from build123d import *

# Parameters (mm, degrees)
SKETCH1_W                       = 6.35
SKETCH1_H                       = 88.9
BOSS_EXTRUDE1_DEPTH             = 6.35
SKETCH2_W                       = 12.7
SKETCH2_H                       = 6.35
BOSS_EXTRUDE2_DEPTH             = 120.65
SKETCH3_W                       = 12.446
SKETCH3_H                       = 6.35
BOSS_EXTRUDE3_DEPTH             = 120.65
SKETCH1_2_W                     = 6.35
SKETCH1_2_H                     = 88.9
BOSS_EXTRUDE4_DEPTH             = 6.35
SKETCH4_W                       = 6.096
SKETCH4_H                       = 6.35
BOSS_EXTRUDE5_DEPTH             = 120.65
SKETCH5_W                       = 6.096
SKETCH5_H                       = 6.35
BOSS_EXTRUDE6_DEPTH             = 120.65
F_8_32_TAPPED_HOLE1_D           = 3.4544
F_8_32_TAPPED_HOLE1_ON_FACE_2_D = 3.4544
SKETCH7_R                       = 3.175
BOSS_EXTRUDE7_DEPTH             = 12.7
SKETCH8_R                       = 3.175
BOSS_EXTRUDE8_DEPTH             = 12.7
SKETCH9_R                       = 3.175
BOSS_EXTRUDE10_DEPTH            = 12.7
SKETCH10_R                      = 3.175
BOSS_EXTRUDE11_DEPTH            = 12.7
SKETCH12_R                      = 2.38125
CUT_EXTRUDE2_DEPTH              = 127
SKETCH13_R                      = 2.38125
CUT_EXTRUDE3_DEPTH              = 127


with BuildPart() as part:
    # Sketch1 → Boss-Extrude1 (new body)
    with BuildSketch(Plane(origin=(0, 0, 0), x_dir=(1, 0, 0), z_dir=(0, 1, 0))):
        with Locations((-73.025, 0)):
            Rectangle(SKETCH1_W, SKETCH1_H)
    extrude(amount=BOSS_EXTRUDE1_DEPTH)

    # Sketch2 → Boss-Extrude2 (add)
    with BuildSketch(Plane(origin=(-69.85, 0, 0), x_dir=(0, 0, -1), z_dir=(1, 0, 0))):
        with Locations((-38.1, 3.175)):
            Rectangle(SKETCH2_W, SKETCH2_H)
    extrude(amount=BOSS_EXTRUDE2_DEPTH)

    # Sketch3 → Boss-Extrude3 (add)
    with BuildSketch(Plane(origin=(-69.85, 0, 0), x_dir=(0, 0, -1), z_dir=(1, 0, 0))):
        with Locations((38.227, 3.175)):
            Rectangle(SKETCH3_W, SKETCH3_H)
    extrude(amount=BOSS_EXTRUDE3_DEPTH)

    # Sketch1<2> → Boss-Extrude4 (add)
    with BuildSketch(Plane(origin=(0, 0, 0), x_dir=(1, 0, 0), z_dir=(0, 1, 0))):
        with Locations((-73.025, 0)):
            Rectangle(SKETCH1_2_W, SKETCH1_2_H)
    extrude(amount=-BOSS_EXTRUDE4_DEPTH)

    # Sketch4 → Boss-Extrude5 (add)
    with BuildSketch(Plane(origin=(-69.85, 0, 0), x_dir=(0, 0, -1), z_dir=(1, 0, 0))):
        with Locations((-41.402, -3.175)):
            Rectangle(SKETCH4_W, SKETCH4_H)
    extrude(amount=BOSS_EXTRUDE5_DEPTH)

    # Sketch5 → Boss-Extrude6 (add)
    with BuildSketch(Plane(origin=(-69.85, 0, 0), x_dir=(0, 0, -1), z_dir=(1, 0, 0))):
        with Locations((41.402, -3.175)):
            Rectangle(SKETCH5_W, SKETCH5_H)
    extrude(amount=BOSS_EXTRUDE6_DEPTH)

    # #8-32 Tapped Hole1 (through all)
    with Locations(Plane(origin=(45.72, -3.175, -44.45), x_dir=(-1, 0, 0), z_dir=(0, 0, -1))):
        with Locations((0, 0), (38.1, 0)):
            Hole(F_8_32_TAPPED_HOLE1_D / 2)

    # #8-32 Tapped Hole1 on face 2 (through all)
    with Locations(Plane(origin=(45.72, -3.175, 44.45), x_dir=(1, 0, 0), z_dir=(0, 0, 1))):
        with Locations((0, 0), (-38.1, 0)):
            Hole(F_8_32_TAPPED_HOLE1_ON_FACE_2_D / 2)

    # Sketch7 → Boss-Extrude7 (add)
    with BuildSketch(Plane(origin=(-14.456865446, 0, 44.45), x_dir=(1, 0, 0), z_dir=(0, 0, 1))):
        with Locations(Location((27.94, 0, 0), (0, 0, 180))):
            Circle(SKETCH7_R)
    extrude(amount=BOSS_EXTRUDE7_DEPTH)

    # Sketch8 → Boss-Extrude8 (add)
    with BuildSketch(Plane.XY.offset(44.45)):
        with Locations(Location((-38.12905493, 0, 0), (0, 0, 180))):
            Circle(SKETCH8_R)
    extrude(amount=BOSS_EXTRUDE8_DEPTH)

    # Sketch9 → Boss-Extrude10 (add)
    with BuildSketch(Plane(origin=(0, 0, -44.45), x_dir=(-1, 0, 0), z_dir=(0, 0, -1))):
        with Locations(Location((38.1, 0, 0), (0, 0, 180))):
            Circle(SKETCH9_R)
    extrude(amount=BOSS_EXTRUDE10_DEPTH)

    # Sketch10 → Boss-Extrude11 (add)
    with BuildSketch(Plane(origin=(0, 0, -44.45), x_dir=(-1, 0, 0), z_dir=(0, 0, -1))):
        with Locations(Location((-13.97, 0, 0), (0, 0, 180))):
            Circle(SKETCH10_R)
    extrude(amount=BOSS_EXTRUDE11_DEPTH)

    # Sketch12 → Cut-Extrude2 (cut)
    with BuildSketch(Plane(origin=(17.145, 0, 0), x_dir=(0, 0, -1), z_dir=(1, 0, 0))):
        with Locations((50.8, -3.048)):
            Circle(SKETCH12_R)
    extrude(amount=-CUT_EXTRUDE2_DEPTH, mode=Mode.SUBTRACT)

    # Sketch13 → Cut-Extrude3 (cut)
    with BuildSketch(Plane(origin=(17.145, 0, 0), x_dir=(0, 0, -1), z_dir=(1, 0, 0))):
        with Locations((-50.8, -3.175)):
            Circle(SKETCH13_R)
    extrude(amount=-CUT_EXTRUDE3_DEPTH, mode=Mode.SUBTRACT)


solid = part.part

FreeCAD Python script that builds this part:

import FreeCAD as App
import Part
import Sketcher
Q = App.Units.Quantity

doc = App.newDocument("Part")
body = doc.addObject("PartDesign::Body", "Body")

# Sketch on XZ plane
sketch1 = body.newObject("Sketcher::SketchObject", "Sketch")
sketch1.AttachmentSupport = (doc.getObject("XZ_Plane"), [""])
sketch1.MapMode = "FlatFace"
sketch1.addGeometry([
    Part.LineSegment(App.Vector(-76, -44, 0), App.Vector(-76, 44, 0)),
    Part.LineSegment(App.Vector(-76, 44, 0), App.Vector(-70, 44, 0)),
    Part.LineSegment(App.Vector(-70, 44, 0), App.Vector(-70, -44, 0)),
    Part.LineSegment(App.Vector(-70, -44, 0), App.Vector(-76, -44, 0)),
], False)
sketch1.addConstraint([
    Sketcher.Constraint("Coincident", 0, 2, 1, 1),
    Sketcher.Constraint("Coincident", 1, 2, 2, 1),
    Sketcher.Constraint("Coincident", 2, 2, 3, 1),
    Sketcher.Constraint("Coincident", 3, 2, 0, 1),
    Sketcher.Constraint("Vertical", 0),
    Sketcher.Constraint("Horizontal", 1),
    Sketcher.Constraint("Vertical", 2),
    Sketcher.Constraint("Horizontal", 3),
    Sketcher.Constraint("DistanceY", 0, 1, 0, 2, Q("3.5 in")),
    Sketcher.Constraint("DistanceX", 0, 2, -1, 1, Q("3 in")),
    Sketcher.Constraint("DistanceX", 1, 1, 1, 2, Q("0.25 in")),
    Sketcher.Constraint("DistanceY", -1, 1, 0, 2, Q("1.75 in")),
])
pad1 = body.newObject("PartDesign::Pad", "Pad")
pad1.Profile = sketch1
pad1.Length = Q("0.25 in")
pad1.Reversed = True

# Sketch on YZ plane
sketch2 = body.newObject("Sketcher::SketchObject", "Sketch001")
sketch2.AttachmentSupport = (doc.getObject("YZ_Plane"), [""])
sketch2.MapMode = "FlatFace"
sketch2.AttachmentOffset = App.Placement(App.Vector(0, 0, -2.75 * 25.4), App.Rotation())
sketch2.addGeometry([
    Part.LineSegment(App.Vector(6, 44, 0), App.Vector(0, 44, 0)),
    Part.LineSegment(App.Vector(0, 44, 0), App.Vector(0, 32, 0)),
    Part.LineSegment(App.Vector(0, 32, 0), App.Vector(6, 32, 0)),
    Part.LineSegment(App.Vector(6, 32, 0), App.Vector(6, 44, 0)),
], False)
sketch2.addConstraint([
    Sketcher.Constraint("Coincident", 0, 2, 1, 1),
    Sketcher.Constraint("Coincident", 1, 2, 2, 1),
    Sketcher.Constraint("Coincident", 2, 2, 3, 1),
    Sketcher.Constraint("Coincident", 3, 2, 0, 1),
    Sketcher.Constraint("Horizontal", 0),
    Sketcher.Constraint("Vertical", 1),
    Sketcher.Constraint("Horizontal", 2),
    Sketcher.Constraint("Vertical", 3),
    Sketcher.Constraint("PointOnObject", 0, 2, -2),
    Sketcher.Constraint("DistanceY", 1, 2, 1, 1, Q("0.5 in")),
    Sketcher.Constraint("DistanceX", 0, 2, 0, 1, Q("0.25 in")),
    Sketcher.Constraint("DistanceY", -1, 1, 0, 2, Q("1.75 in")),
])
pad2 = body.newObject("PartDesign::Pad", "Pad001")
pad2.Profile = sketch2
pad2.Length = Q("4.75 in")

# Sketch on YZ plane
sketch3 = body.newObject("Sketcher::SketchObject", "Sketch002")
sketch3.AttachmentSupport = (doc.getObject("YZ_Plane"), [""])
sketch3.MapMode = "FlatFace"
sketch3.AttachmentOffset = App.Placement(App.Vector(0, 0, -2.75 * 25.4), App.Rotation())
sketch3.addGeometry([
    Part.LineSegment(App.Vector(6, -32, 0), App.Vector(0, -32, 0)),
    Part.LineSegment(App.Vector(0, -32, 0), App.Vector(0, -44, 0)),
    Part.LineSegment(App.Vector(0, -44, 0), App.Vector(6, -44, 0)),
    Part.LineSegment(App.Vector(6, -44, 0), App.Vector(6, -32, 0)),
], False)
sketch3.addConstraint([
    Sketcher.Constraint("Coincident", 0, 2, 1, 1),
    Sketcher.Constraint("Coincident", 1, 2, 2, 1),
    Sketcher.Constraint("Coincident", 2, 2, 3, 1),
    Sketcher.Constraint("Coincident", 3, 2, 0, 1),
    Sketcher.Constraint("Horizontal", 0),
    Sketcher.Constraint("Vertical", 1),
    Sketcher.Constraint("Horizontal", 2),
    Sketcher.Constraint("Vertical", 3),
    Sketcher.Constraint("PointOnObject", 0, 2, -2),
    Sketcher.Constraint("DistanceX", 0, 2, 0, 1, Q("0.25 in")),
    Sketcher.Constraint("DistanceY", 1, 2, 1, 1, Q("0.49 in")),
    Sketcher.Constraint("DistanceY", 0, 2, -1, 1, Q("1.26 in")),
])
pad3 = body.newObject("PartDesign::Pad", "Pad002")
pad3.Profile = sketch3
pad3.Length = Q("4.75 in")

# Sketch on XZ plane
sketch4 = body.newObject("Sketcher::SketchObject", "Sketch003")
sketch4.AttachmentSupport = (doc.getObject("XZ_Plane"), [""])
sketch4.MapMode = "FlatFace"
sketch4.addGeometry([
    Part.LineSegment(App.Vector(-76, -44, 0), App.Vector(-76, 44, 0)),
    Part.LineSegment(App.Vector(-76, 44, 0), App.Vector(-70, 44, 0)),
    Part.LineSegment(App.Vector(-70, 44, 0), App.Vector(-70, -44, 0)),
    Part.LineSegment(App.Vector(-70, -44, 0), App.Vector(-76, -44, 0)),
], False)
sketch4.addConstraint([
    Sketcher.Constraint("Coincident", 0, 2, 1, 1),
    Sketcher.Constraint("Coincident", 1, 2, 2, 1),
    Sketcher.Constraint("Coincident", 2, 2, 3, 1),
    Sketcher.Constraint("Coincident", 3, 2, 0, 1),
    Sketcher.Constraint("Vertical", 0),
    Sketcher.Constraint("Horizontal", 1),
    Sketcher.Constraint("Vertical", 2),
    Sketcher.Constraint("Horizontal", 3),
    Sketcher.Constraint("DistanceY", 0, 1, 0, 2, Q("3.5 in")),
    Sketcher.Constraint("DistanceX", 0, 2, -1, 1, Q("3 in")),
    Sketcher.Constraint("DistanceX", 1, 1, 1, 2, Q("0.25 in")),
    Sketcher.Constraint("DistanceY", -1, 1, 0, 2, Q("1.75 in")),
])
pad4 = body.newObject("PartDesign::Pad", "Pad003")
pad4.Profile = sketch4
pad4.Length = Q("0.25 in")

# Sketch on YZ plane
sketch5 = body.newObject("Sketcher::SketchObject", "Sketch004")
sketch5.AttachmentSupport = (doc.getObject("YZ_Plane"), [""])
sketch5.MapMode = "FlatFace"
sketch5.AttachmentOffset = App.Placement(App.Vector(0, 0, -2.75 * 25.4), App.Rotation())
sketch5.addGeometry([
    Part.LineSegment(App.Vector(0, 44, 0), App.Vector(-6, 44, 0)),
    Part.LineSegment(App.Vector(-6, 44, 0), App.Vector(-6, 38, 0)),
    Part.LineSegment(App.Vector(-6, 38, 0), App.Vector(0, 38, 0)),
    Part.LineSegment(App.Vector(0, 38, 0), App.Vector(0, 44, 0)),
], False)
sketch5.addConstraint([
    Sketcher.Constraint("Coincident", 0, 2, 1, 1),
    Sketcher.Constraint("Coincident", 1, 2, 2, 1),
    Sketcher.Constraint("Coincident", 2, 2, 3, 1),
    Sketcher.Constraint("Coincident", 3, 2, 0, 1),
    Sketcher.Constraint("Horizontal", 0),
    Sketcher.Constraint("Vertical", 1),
    Sketcher.Constraint("Horizontal", 2),
    Sketcher.Constraint("Vertical", 3),
    Sketcher.Constraint("PointOnObject", 2, 2, -2),
    Sketcher.Constraint("DistanceX", 0, 2, 0, 1, Q("0.25 in")),
    Sketcher.Constraint("DistanceY", 1, 2, 1, 1, Q("0.24 in")),
    Sketcher.Constraint("DistanceY", -1, 1, 0, 2, Q("1.75 in")),
])
pad5 = body.newObject("PartDesign::Pad", "Pad004")
pad5.Profile = sketch5
pad5.Length = Q("4.75 in")

# Sketch on YZ plane
sketch6 = body.newObject("Sketcher::SketchObject", "Sketch005")
sketch6.AttachmentSupport = (doc.getObject("YZ_Plane"), [""])
sketch6.MapMode = "FlatFace"
sketch6.AttachmentOffset = App.Placement(App.Vector(0, 0, -2.75 * 25.4), App.Rotation())
sketch6.addGeometry([
    Part.LineSegment(App.Vector(0, -38, 0), App.Vector(-6, -38, 0)),
    Part.LineSegment(App.Vector(-6, -38, 0), App.Vector(-6, -44, 0)),
    Part.LineSegment(App.Vector(-6, -44, 0), App.Vector(0, -44, 0)),
    Part.LineSegment(App.Vector(0, -44, 0), App.Vector(0, -38, 0)),
], False)
sketch6.addConstraint([
    Sketcher.Constraint("Coincident", 0, 2, 1, 1),
    Sketcher.Constraint("Coincident", 1, 2, 2, 1),
    Sketcher.Constraint("Coincident", 2, 2, 3, 1),
    Sketcher.Constraint("Coincident", 3, 2, 0, 1),
    Sketcher.Constraint("Horizontal", 0),
    Sketcher.Constraint("Vertical", 1),
    Sketcher.Constraint("Horizontal", 2),
    Sketcher.Constraint("Vertical", 3),
    Sketcher.Constraint("PointOnObject", 2, 2, -2),
    Sketcher.Constraint("DistanceX", 0, 2, 0, 1, Q("0.25 in")),
    Sketcher.Constraint("DistanceY", 1, 2, 1, 1, Q("0.24 in")),
    Sketcher.Constraint("DistanceY", 0, 2, -1, 1, Q("1.51 in")),
])
pad6 = body.newObject("PartDesign::Pad", "Pad005")
pad6.Profile = sketch6
pad6.Length = Q("4.75 in")

# Sketch on XY plane
sketch7 = body.newObject("Sketcher::SketchObject", "Sketch006")
sketch7.AttachmentSupport = (doc.getObject("XY_Plane"), [""])
sketch7.MapMode = "FlatFace"
sketch7.AttachmentOffset = App.Placement(App.Vector(0, 0, -1.75 * 25.4), App.Rotation())
sketch7.addGeometry([
    Part.Circle(App.Vector(45.7, -3.2, 0), App.Vector(0, 0, 1), 1.7),
    Part.Circle(App.Vector(7.6, -3.2, 0), App.Vector(0, 0, 1), 1.7),
], False)
sketch7.addConstraint([
    Sketcher.Constraint("Equal", 0, 1),
    Sketcher.Constraint("Horizontal", 0, 3, 1, 3),
    Sketcher.Constraint("Diameter", 0, Q("0.136 in")),
    Sketcher.Constraint("DistanceX", -1, 1, 0, 3, Q("1.8 in")),
    Sketcher.Constraint("DistanceX", -1, 1, 1, 3, Q("0.3 in")),
    Sketcher.Constraint("DistanceY", 0, 3, -1, 1, Q("0.125 in")),
])
doc.recompute()
hole = body.newObject("PartDesign::Hole", "Hole")
hole.Profile = sketch7
hole.ThreadType = "None"
hole.Diameter = Q("0.136 in")
hole.DepthType = "ThroughAll"
hole.Reversed = True

# Sketch on XY plane
sketch8 = body.newObject("Sketcher::SketchObject", "Sketch007")
sketch8.AttachmentSupport = (doc.getObject("XY_Plane"), [""])
sketch8.MapMode = "FlatFace"
sketch8.AttachmentOffset = App.Placement(App.Vector(0, 0, 1.75 * 25.4), App.Rotation())
sketch8.addGeometry([
    Part.Circle(App.Vector(45.7, -3.2, 0), App.Vector(0, 0, 1), 1.7),
    Part.Circle(App.Vector(7.6, -3.2, 0), App.Vector(0, 0, 1), 1.7),
], False)
sketch8.addConstraint([
    Sketcher.Constraint("Equal", 0, 1),
    Sketcher.Constraint("Horizontal", 0, 3, 1, 3),
    Sketcher.Constraint("Diameter", 0, Q("0.136 in")),
    Sketcher.Constraint("DistanceX", -1, 1, 0, 3, Q("1.8 in")),
    Sketcher.Constraint("DistanceX", -1, 1, 1, 3, Q("0.3 in")),
    Sketcher.Constraint("DistanceY", 0, 3, -1, 1, Q("0.125 in")),
])
doc.recompute()
hole2 = body.newObject("PartDesign::Hole", "Hole001")
hole2.Profile = sketch8
hole2.ThreadType = "None"
hole2.Diameter = Q("0.136 in")
hole2.DepthType = "ThroughAll"

# Sketch on XY plane
sketch9 = body.newObject("Sketcher::SketchObject", "Sketch008")
sketch9.AttachmentSupport = (doc.getObject("XY_Plane"), [""])
sketch9.MapMode = "FlatFace"
sketch9.AttachmentOffset = App.Placement(App.Vector(0, 0, 1.75 * 25.4), App.Rotation())
sketch9.addGeometry(Part.Circle(App.Vector(13.5, 0, 0), App.Vector(0, 0, 1), 3.2), False)
sketch9.addConstraint([
    Sketcher.Constraint("PointOnObject", 0, 3, -1),
    Sketcher.Constraint("Diameter", 0, Q("0.25 in")),
    Sketcher.Constraint("DistanceX", -1, 1, 0, 3, 13.483135),
])
pad7 = body.newObject("PartDesign::Pad", "Pad006")
pad7.Profile = sketch9
pad7.Length = Q("0.5 in")

# Sketch on XY plane
sketch10 = body.newObject("Sketcher::SketchObject", "Sketch009")
sketch10.AttachmentSupport = (doc.getObject("XY_Plane"), [""])
sketch10.MapMode = "FlatFace"
sketch10.AttachmentOffset = App.Placement(App.Vector(0, 0, 1.75 * 25.4), App.Rotation())
sketch10.addGeometry(Part.Circle(App.Vector(-38.1, 0, 0), App.Vector(0, 0, 1), 3.2), False)
sketch10.addConstraint([
    Sketcher.Constraint("PointOnObject", 0, 3, -1),
    Sketcher.Constraint("Diameter", 0, Q("0.25 in")),
    Sketcher.Constraint("DistanceX", 0, 3, -1, 1, 38.129055),
])
pad8 = body.newObject("PartDesign::Pad", "Pad007")
pad8.Profile = sketch10
pad8.Length = Q("0.5 in")

# Sketch on XY plane
sketch11 = body.newObject("Sketcher::SketchObject", "Sketch010")
sketch11.AttachmentSupport = (doc.getObject("XY_Plane"), [""])
sketch11.MapMode = "FlatFace"
sketch11.AttachmentOffset = App.Placement(App.Vector(0, 0, -1.75 * 25.4), App.Rotation())
sketch11.addGeometry(Part.Circle(App.Vector(-38.1, 0, 0), App.Vector(0, 0, 1), 3.2), False)
sketch11.addConstraint([
    Sketcher.Constraint("PointOnObject", 0, 3, -1),
    Sketcher.Constraint("Diameter", 0, Q("0.25 in")),
    Sketcher.Constraint("DistanceX", 0, 3, -1, 1, Q("1.5 in")),
])
pad9 = body.newObject("PartDesign::Pad", "Pad008")
pad9.Profile = sketch11
pad9.Length = Q("0.5 in")
pad9.Reversed = True

# Sketch on XY plane
sketch12 = body.newObject("Sketcher::SketchObject", "Sketch011")
sketch12.AttachmentSupport = (doc.getObject("XY_Plane"), [""])
sketch12.MapMode = "FlatFace"
sketch12.AttachmentOffset = App.Placement(App.Vector(0, 0, -1.75 * 25.4), App.Rotation())
sketch12.addGeometry(Part.Circle(App.Vector(14, 0, 0), App.Vector(0, 0, 1), 3.2), False)
sketch12.addConstraint([
    Sketcher.Constraint("PointOnObject", 0, 3, -1),
    Sketcher.Constraint("Diameter", 0, Q("0.25 in")),
    Sketcher.Constraint("DistanceX", -1, 1, 0, 3, Q("0.55 in")),
])
pad10 = body.newObject("PartDesign::Pad", "Pad009")
pad10.Profile = sketch12
pad10.Length = Q("0.5 in")
pad10.Reversed = True

# Sketch on YZ plane
sketch13 = body.newObject("Sketcher::SketchObject", "Sketch012")
sketch13.AttachmentSupport = (doc.getObject("YZ_Plane"), [""])
sketch13.MapMode = "FlatFace"
sketch13.AttachmentOffset = App.Placement(App.Vector(0, 0, 0.675 * 25.4), App.Rotation())
sketch13.addGeometry(Part.Circle(App.Vector(-3, -50.8, 0), App.Vector(0, 0, 1), 2.4), False)
sketch13.addConstraint([
    Sketcher.Constraint("Diameter", 0, Q("0.1875 in")),
    Sketcher.Constraint("DistanceY", 0, 3, -1, 1, Q("2 in")),
    Sketcher.Constraint("DistanceX", 0, 3, -1, 1, Q("0.12 in")),
])
pocket1 = body.newObject("PartDesign::Pocket", "Pocket")
pocket1.Profile = sketch13
pocket1.Length = Q("5 in")

# Sketch on YZ plane
sketch14 = body.newObject("Sketcher::SketchObject", "Sketch013")
sketch14.AttachmentSupport = (doc.getObject("YZ_Plane"), [""])
sketch14.MapMode = "FlatFace"
sketch14.AttachmentOffset = App.Placement(App.Vector(0, 0, 0.675 * 25.4), App.Rotation())
sketch14.addGeometry(Part.Circle(App.Vector(-3.2, 50.8, 0), App.Vector(0, 0, 1), 2.4), False)
sketch14.addConstraint([
    Sketcher.Constraint("Diameter", 0, Q("0.1875 in")),
    Sketcher.Constraint("DistanceY", -1, 1, 0, 3, Q("2 in")),
    Sketcher.Constraint("DistanceX", 0, 3, -1, 1, Q("0.125 in")),
])
pocket2 = body.newObject("PartDesign::Pocket", "Pocket001")
pocket2.Profile = sketch14
pocket2.Length = Q("5 in")

doc.recompute()
